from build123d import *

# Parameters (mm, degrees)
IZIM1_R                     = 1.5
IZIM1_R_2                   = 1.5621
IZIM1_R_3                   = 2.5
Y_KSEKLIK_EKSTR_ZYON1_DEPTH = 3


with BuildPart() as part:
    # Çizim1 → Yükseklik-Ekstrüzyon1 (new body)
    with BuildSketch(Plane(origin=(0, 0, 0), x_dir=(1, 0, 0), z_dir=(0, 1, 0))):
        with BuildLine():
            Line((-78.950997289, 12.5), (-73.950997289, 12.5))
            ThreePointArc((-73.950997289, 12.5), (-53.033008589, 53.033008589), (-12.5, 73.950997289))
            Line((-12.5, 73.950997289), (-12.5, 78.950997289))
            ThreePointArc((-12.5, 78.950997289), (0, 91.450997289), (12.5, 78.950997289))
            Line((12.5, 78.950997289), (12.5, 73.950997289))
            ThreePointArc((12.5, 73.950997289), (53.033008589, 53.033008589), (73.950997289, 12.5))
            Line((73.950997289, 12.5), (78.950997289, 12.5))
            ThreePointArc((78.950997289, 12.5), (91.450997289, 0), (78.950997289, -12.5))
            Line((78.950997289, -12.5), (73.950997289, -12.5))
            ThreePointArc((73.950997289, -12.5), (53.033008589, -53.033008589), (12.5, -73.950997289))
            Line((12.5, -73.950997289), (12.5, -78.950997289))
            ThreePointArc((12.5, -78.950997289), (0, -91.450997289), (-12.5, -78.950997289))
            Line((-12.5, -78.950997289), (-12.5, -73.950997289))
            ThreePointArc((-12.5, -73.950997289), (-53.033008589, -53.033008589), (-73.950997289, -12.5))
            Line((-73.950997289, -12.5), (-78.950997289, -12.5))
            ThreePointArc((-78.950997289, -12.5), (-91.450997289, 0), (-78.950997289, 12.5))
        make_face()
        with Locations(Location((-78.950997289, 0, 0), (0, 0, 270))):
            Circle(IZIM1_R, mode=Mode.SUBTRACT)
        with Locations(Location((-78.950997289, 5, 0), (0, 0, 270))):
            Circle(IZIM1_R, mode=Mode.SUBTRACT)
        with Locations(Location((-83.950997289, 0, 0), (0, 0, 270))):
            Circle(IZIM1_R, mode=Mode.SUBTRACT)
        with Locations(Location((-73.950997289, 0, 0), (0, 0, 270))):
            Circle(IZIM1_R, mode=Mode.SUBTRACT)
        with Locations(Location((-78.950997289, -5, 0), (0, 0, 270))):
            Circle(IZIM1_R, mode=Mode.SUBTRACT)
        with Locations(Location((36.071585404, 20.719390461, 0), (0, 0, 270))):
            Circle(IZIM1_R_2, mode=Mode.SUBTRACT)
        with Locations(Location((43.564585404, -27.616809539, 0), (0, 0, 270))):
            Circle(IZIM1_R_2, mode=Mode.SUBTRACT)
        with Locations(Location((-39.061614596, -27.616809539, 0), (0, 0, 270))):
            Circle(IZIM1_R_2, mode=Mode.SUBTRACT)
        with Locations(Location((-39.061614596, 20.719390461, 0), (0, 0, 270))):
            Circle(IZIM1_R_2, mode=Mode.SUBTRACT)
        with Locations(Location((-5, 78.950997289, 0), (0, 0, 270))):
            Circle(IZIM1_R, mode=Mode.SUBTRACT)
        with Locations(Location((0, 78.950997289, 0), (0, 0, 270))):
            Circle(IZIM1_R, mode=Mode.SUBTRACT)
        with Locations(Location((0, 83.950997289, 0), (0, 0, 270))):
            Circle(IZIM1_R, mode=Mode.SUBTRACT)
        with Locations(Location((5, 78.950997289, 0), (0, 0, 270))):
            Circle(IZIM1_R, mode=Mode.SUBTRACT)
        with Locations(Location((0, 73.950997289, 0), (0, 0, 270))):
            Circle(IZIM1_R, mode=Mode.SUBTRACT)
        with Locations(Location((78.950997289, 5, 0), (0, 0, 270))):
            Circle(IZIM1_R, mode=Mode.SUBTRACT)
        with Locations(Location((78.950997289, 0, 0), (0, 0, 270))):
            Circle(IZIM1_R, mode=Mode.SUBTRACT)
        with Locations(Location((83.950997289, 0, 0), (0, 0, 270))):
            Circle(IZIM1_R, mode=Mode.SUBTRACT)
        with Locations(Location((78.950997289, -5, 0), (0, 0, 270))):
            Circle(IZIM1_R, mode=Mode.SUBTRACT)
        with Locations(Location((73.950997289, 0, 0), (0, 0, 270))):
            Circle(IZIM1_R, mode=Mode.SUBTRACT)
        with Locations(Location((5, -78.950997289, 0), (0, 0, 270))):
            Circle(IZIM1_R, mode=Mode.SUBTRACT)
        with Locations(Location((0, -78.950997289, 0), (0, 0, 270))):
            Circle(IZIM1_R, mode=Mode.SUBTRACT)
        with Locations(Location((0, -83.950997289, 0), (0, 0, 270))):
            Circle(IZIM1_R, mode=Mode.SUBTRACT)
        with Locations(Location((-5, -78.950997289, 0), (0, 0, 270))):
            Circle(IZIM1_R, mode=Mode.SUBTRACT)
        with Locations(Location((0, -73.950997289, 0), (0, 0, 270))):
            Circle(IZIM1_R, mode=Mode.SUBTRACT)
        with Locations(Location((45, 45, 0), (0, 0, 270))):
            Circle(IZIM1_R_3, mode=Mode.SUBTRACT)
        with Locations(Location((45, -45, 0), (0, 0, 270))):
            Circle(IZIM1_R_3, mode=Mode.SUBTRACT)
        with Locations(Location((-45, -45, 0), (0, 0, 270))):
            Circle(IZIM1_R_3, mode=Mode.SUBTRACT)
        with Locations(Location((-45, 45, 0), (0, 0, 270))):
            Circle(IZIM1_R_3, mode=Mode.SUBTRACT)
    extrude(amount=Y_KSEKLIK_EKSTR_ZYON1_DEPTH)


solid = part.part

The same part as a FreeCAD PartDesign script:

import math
import FreeCAD as App
import Part
import Sketcher
from FreeCAD import Vector
Q = App.Units.Quantity

doc = App.newDocument("Part")
params = doc.addObject("Spreadsheet::Sheet", "Params")
for row, (alias, value) in enumerate([
    ("sketch1_diameter", "5 mm"),
    ("sketch1_diameter2", "3 mm"),
    ("sketch1_radius", "75 mm"),
    ("sketch1_radius2", "12.5 mm"),
    ("sketch1_width", "5 mm"),
    ("pad1_length", "3 mm"),
], start=1):
    params.set(f"A{row}", alias)
    params.set(f"B{row}", "=" + value)
    params.setAlias(f"B{row}", alias)

body = doc.addObject("PartDesign::Body", "Body")

# Sketch on XZ plane
sketch1 = doc.addObject("Sketcher::SketchObject", "Sketch")
body.addObject(sketch1)
sketch1.AttachmentSupport = (doc.XZ_Plane, [""])
sketch1.MapMode = "FlatFace"
sketch1.addGeometry(Part.LineSegment(Vector(-73.950997, -12.5, 0), Vector(-78.950997, -12.5, 0)), False)
sketch1.addGeometry(Part.ArcOfCircle(Part.Circle(Vector(-78.950997, 0, 0), Vector(0, 0, 1), 12.5), math.radians(90), math.radians(270)), False)
sketch1.addGeometry(Part.LineSegment(Vector(-78.950997, 12.5, 0), Vector(-73.950997, 12.5, 0)), False)
sketch1.addGeometry(Part.ArcOfCircle(Part.Circle(Vector(0, 0, 0), Vector(0, 0, 1), 75), math.radians(99.594068), math.radians(170.405932)), False)
sketch1.addGeometry(Part.LineSegment(Vector(-12.5, 73.950997, 0), Vector(-12.5, 78.950997, 0)), False)
sketch1.addGeometry(Part.ArcOfCircle(Part.Circle(Vector(0, 78.950997, 0), Vector(0, 0, 1), 12.5), math.radians(0), math.radians(180)), False)
sketch1.addGeometry(Part.LineSegment(Vector(12.5, 78.950997, 0), Vector(12.5, 73.950997, 0)), False)
sketch1.addGeometry(Part.ArcOfCircle(Part.Circle(Vector(0, 0, 0), Vector(0, 0, 1), 75), math.radians(9.594068), math.radians(80.405932)), False)
sketch1.addGeometry(Part.LineSegment(Vector(73.950997, 12.5, 0), Vector(78.950997, 12.5, 0)), False)
sketch1.addGeometry(Part.ArcOfCircle(Part.Circle(Vector(78.950997, 0, 0), Vector(0, 0, 1), 12.5), math.radians(-90), math.radians(90)), False)
sketch1.addGeometry(Part.LineSegment(Vector(78.950997, -12.5, 0), Vector(73.950997, -12.5, 0)), False)
sketch1.addGeometry(Part.ArcOfCircle(Part.Circle(Vector(0, 0, 0), Vector(0, 0, 1), 75), math.radians(-80.405932), math.radians(-9.594068)), False)
sketch1.addGeometry(Part.LineSegment(Vector(12.5, -73.950997, 0), Vector(12.5, -78.950997, 0)), False)
sketch1.addGeometry(Part.ArcOfCircle(Part.Circle(Vector(0, -78.950997, 0), Vector(0, 0, 1), 12.5), math.radians(180), math.radians(360)), False)
sketch1.addGeometry(Part.LineSegment(Vector(-12.5, -78.950997, 0), Vector(-12.5, -73.950997, 0)), False)
sketch1.addGeometry(Part.ArcOfCircle(Part.Circle(Vector(0, 0, 0), Vector(0, 0, 1), 75), math.radians(-170.405932), math.radians(-99.594068)), False)
sketch1.addGeometry(Part.Circle(Vector(45, 45, 0), Vector(0, 0, 1), 2.5), False)
sketch1.addGeometry(Part.Circle(Vector(5, 78.950997, 0), Vector(0, 0, 1), 1.5), False)
sketch1.addGeometry(Part.Circle(Vector(43.564585, 27.61681, 0), Vector(0, 0, 1), 1.5621), False)
sketch1.addGeometry(Part.Circle(Vector(78.950997, 5, 0), Vector(0, 0, 1), 1.5), False)
sketch1.addGeometry(Part.Circle(Vector(0, 83.950997, 0), Vector(0, 0, 1), 1.5), False)
sketch1.addGeometry(Part.Circle(Vector(0, 78.950997, 0), Vector(0, 0, 1), 1.5), False)
sketch1.addGeometry(Part.Circle(Vector(-5, 78.950997, 0), Vector(0, 0, 1), 1.5), False)
sketch1.addGeometry(Part.Circle(Vector(0, 73.950997, 0), Vector(0, 0, 1), 1.5), False)
sketch1.addGeometry(Part.Circle(Vector(-45, 45, 0), Vector(0, 0, 1), 2.5), False)
sketch1.addGeometry(Part.Circle(Vector(-39.061615, 27.61681, 0), Vector(0, 0, 1), 1.5621), False)
sketch1.addGeometry(Part.Circle(Vector(-78.950997, 5, 0), Vector(0, 0, 1), 1.5), False)
sketch1.addGeometry(Part.Circle(Vector(83.950997, 0, 0), Vector(0, 0, 1), 1.5), False)
sketch1.addGeometry(Part.Circle(Vector(78.950997, 0, 0), Vector(0, 0, 1), 1.5), False)
sketch1.addGeometry(Part.Circle(Vector(78.950997, -5, 0), Vector(0, 0, 1), 1.5), False)
sketch1.addGeometry(Part.Circle(Vector(73.950997, 0, 0), Vector(0, 0, 1), 1.5), False)
sketch1.addGeometry(Part.Circle(Vector(36.071585, -20.71939, 0), Vector(0, 0, 1), 1.5621), False)
sketch1.addGeometry(Part.Circle(Vector(45, -45, 0), Vector(0, 0, 1), 2.5), False)
sketch1.addGeometry(Part.Circle(Vector(5, -78.950997, 0), Vector(0, 0, 1), 1.5), False)
sketch1.addGeometry(Part.Circle(Vector(-39.061615, -20.71939, 0), Vector(0, 0, 1), 1.5621), False)
sketch1.addGeometry(Part.Circle(Vector(-73.950997, 0, 0), Vector(0, 0, 1), 1.5), False)
sketch1.addGeometry(Part.Circle(Vector(-78.950997, 0, 0), Vector(0, 0, 1), 1.5), False)
sketch1.addGeometry(Part.Circle(Vector(-78.950997, -5, 0), Vector(0, 0, 1), 1.5), False)
sketch1.addGeometry(Part.Circle(Vector(-83.950997, 0, 0), Vector(0, 0, 1), 1.5), False)
sketch1.addGeometry(Part.Circle(Vector(0, -73.950997, 0), Vector(0, 0, 1), 1.5), False)
sketch1.addGeometry(Part.Circle(Vector(0, -78.950997, 0), Vector(0, 0, 1), 1.5), False)
sketch1.addGeometry(Part.Circle(Vector(-5, -78.950997, 0), Vector(0, 0, 1), 1.5), False)
sketch1.addGeometry(Part.Circle(Vector(0, -83.950997, 0), Vector(0, 0, 1), 1.5), False)
sketch1.addGeometry(Part.Circle(Vector(-45, -45, 0), Vector(0, 0, 1), 2.5), False)
sketch1.addConstraint(Sketcher.Constraint("Tangent", 0, 2, 1, 2))
sketch1.addConstraint(Sketcher.Constraint("Tangent", 1, 1, 2, 1))
sketch1.addConstraint(Sketcher.Constraint("Coincident", 2, 2, 3, 2))
sketch1.addConstraint(Sketcher.Constraint("Coincident", 3, 1, 4, 1))
sketch1.addConstraint(Sketcher.Constraint("Tangent", 4, 2, 5, 2))
sketch1.addConstraint(Sketcher.Constraint("Tangent", 5, 1, 6, 1))
sketch1.addConstraint(Sketcher.Constraint("Coincident", 6, 2, 7, 2))
sketch1.addConstraint(Sketcher.Constraint("Coincident", 7, 1, 8, 1))
sketch1.addConstraint(Sketcher.Constraint("Tangent", 8, 2, 9, 2))
sketch1.addConstraint(Sketcher.Constraint("Tangent", 9, 1, 10, 1))
sketch1.addConstraint(Sketcher.Constraint("Coincident", 10, 2, 11, 2))
sketch1.addConstraint(Sketcher.Constraint("Coincident", 11, 1, 12, 1))
sketch1.addConstraint(Sketcher.Constraint("Tangent", 12, 2, 13, 2))
sketch1.addConstraint(Sketcher.Constraint("Tangent", 13, 1, 14, 1))
sketch1.addConstraint(Sketcher.Constraint("Coincident", 14, 2, 15, 2))
sketch1.addConstraint(Sketcher.Constraint("Coincident", 15, 1, 0, 1))
sketch1.addConstraint(Sketcher.Constraint("Horizontal", 0))
sketch1.addConstraint(Sketcher.Constraint("Horizontal", 2))
sketch1.addConstraint(Sketcher.Constraint("Vertical", 4))
sketch1.addConstraint(Sketcher.Constraint("Vertical", 6))
sketch1.addConstraint(Sketcher.Constraint("Horizontal", 8))
sketch1.addConstraint(Sketcher.Constraint("Horizontal", 10))
sketch1.addConstraint(Sketcher.Constraint("Vertical", 12))
sketch1.addConstraint(Sketcher.Constraint("Vertical", 14))
sketch1.addConstraint(Sketcher.Constraint("Coincident", 3, 3, -1, 1))
sketch1.addConstraint(Sketcher.Constraint("Coincident", 7, 3, -1, 1))
sketch1.addConstraint(Sketcher.Constraint("Coincident", 11, 3, -1, 1))
sketch1.addConstraint(Sketcher.Constraint("Coincident", 15, 3, -1, 1))
sketch1.addConstraint(Sketcher.Constraint("Coincident", 21, 3, 5, 3))
sketch1.addConstraint(Sketcher.Constraint("Coincident", 28, 3, 9, 3))
sketch1.addConstraint(Sketcher.Constraint("Coincident", 36, 3, 1, 3))
sketch1.addConstraint(Sketcher.Constraint("Coincident", 40, 3, 13, 3))
sketch1.addConstraint(Sketcher.Constraint("Equal", 1, 5))
sketch1.addConstraint(Sketcher.Constraint("Equal", 3, 7))
sketch1.addConstraint(Sketcher.Constraint("Equal", 5, 9))
sketch1.addConstraint(Sketcher.Constraint("Equal", 7, 11))
sketch1.addConstraint(Sketcher.Constraint("Equal", 9, 13))
sketch1.addConstraint(Sketcher.Constraint("Equal", 11, 15))
sketch1.addConstraint(Sketcher.Constraint("Equal", 17, 19))
sketch1.addConstraint(Sketcher.Constraint("Equal", 19, 20))
sketch1.addConstraint(Sketcher.Constraint("Equal", 20, 21))
sketch1.addConstraint(Sketcher.Constraint("Equal", 21, 22))
sketch1.addConstraint(Sketcher.Constraint("Equal", 22, 23))
sketch1.addConstraint(Sketcher.Constraint("Equal", 16, 24))
sketch1.addConstraint(Sketcher.Constraint("Equal", 18, 25))
sketch1.addConstraint(Sketcher.Constraint("Equal", 23, 26))
sketch1.addConstraint(Sketcher.Constraint("Equal", 26, 27))
sketch1.addConstraint(Sketcher.Constraint("Equal", 27, 28))
sketch1.addConstraint(Sketcher.Constraint("Equal", 28, 29))
sketch1.addConstraint(Sketcher.Constraint("Equal", 29, 30))
sketch1.addConstraint(Sketcher.Constraint("Equal", 25, 31))
sketch1.addConstraint(Sketcher.Constraint("Equal", 24, 32))
sketch1.addConstraint(Sketcher.Constraint("Equal", 30, 33))
sketch1.addConstraint(Sketcher.Constraint("Equal", 31, 34))
sketch1.addConstraint(Sketcher.Constraint("Equal", 33, 35))
sketch1.addConstraint(Sketcher.Constraint("Equal", 35, 36))
sketch1.addConstraint(Sketcher.Constraint("Equal", 36, 37))
sketch1.addConstraint(Sketcher.Constraint("Equal", 37, 38))
sketch1.addConstraint(Sketcher.Constraint("Equal", 38, 39))
sketch1.addConstraint(Sketcher.Constraint("Equal", 39, 40))
sketch1.addConstraint(Sketcher.Constraint("Equal", 40, 41))
sketch1.addConstraint(Sketcher.Constraint("Equal", 41, 42))
sketch1.addConstraint(Sketcher.Constraint("Equal", 32, 43))
sketch1.addConstraint(Sketcher.Constraint("Symmetric", 1, 3, 9, 3, -1, 1))
sketch1.addConstraint(Sketcher.Constraint("Symmetric", 5, 3, 13, 3, -1, 1))
sketch1.addConstraint(Sketcher.Constraint("Symmetric", 26, 3, 29, 3, -1, 1))
sketch1.addConstraint(Sketcher.Constraint("Symmetric", 24, 3, 32, 3, -1, 1))
sketch1.addConstraint(Sketcher.Constraint("Symmetric", 22, 3, 33, 3, -1, 1))
sketch1.addConstraint(Sketcher.Constraint("Symmetric", 30, 3, 35, 3, -1, 1))
sketch1.addConstraint(Sketcher.Constraint("Symmetric", 19, 3, 37, 3, -1, 1))
sketch1.addConstraint(Sketcher.Constraint("Symmetric", 27, 3, 38, 3, -1, 1))
sketch1.addConstraint(Sketcher.Constraint("Symmetric", 23, 3, 39, 3, -1, 1))
sketch1.addConstraint(Sketcher.Constraint("Symmetric", 17, 3, 41, 3, -1, 1))
sketch1.addConstraint(Sketcher.Constraint("Symmetric", 20, 3, 42, 3, -1, 1))
sketch1.addConstraint(Sketcher.Constraint("Symmetric", 16, 3, 43, 3, -1, 1))
sketch1.addConstraint(Sketcher.Constraint("Symmetric", 17, 3, 22, 3, -2))
sketch1.addConstraint(Sketcher.Constraint("Symmetric", 16, 3, 24, 3, -2))
sketch1.addConstraint(Sketcher.Constraint("Symmetric", 19, 3, 26, 3, -2))
sketch1.addConstraint(Sketcher.Constraint("PointOnObject", 1, 3, -1))
sketch1.addConstraint(Sketcher.Constraint("PointOnObject", 5, 3, -2))
sketch1.addConstraint(Sketcher.Constraint("PointOnObject", 20, 3, -2))
sketch1.addConstraint(Sketcher.Constraint("PointOnObject", 23, 3, -2))
sketch1.addConstraint(Sketcher.Constraint("PointOnObject", 27, 3, -1))
sketch1.addConstraint(Sketcher.Constraint("PointOnObject", 30, 3, -1))
sketch1.addConstraint(Sketcher.Constraint("Horizontal", 5, 3, 17, 3))
sketch1.addConstraint(Sketcher.Constraint("Horizontal", 18, 3, 25, 3))
sketch1.addConstraint(Sketcher.Constraint("Horizontal", 31, 3, 34, 3))
sketch1.addConstraint(Sketcher.Constraint("Horizontal", 23, 3, 3, 1))
sketch1.addConstraint(Sketcher.Constraint("Vertical", 9, 3, 19, 3))
sketch1.addConstraint(Sketcher.Constraint("Vertical", 25, 3, 34, 3))
sketch1.addConstraint(Sketcher.Constraint("Vertical", 35, 3, 2, 2))
sketch1.addConstraint(Sketcher.Constraint("Equal", 10, 4))
sketch1.addConstraint(Sketcher.Constraint("Diameter", 16, Q("5 mm")))
sketch1.addConstraint(Sketcher.Constraint("Diameter", 17, Q("3 mm")))
sketch1.addConstraint(Sketcher.Constraint("Radius", 3, Q("75 mm")))
sketch1.addConstraint(Sketcher.Constraint("Radius", 1, Q("12.5 mm")))
sketch1.addConstraint(Sketcher.Constraint("DistanceX", 0, 2, 0, 1, Q("5 mm")))
sketch1.addConstraint(Sketcher.Constraint("DistanceX", -1, 1, 16, 3, Q("45 mm")))
sketch1.addConstraint(Sketcher.Constraint("DistanceY", -1, 1, 16, 3, Q("45 mm")))
sketch1.addConstraint(Sketcher.Constraint("DistanceX", -1, 1, 17, 3, Q("5 mm")))
sketch1.addConstraint(Sketcher.Constraint("DistanceY", -1, 1, 19, 3, Q("5 mm")))
sketch1.addConstraint(Sketcher.Constraint("DistanceY", 5, 3, 20, 3, Q("5 mm")))
sketch1.addConstraint(Sketcher.Constraint("DistanceX", 9, 3, 27, 3, Q("5 mm")))
sketch1.addConstraint(Sketcher.Constraint("Diameter", 18, Q("3.1242 mm")))
sketch1.addConstraint(Sketcher.Constraint("DistanceY", -1, 1, 18, 3, Q("27.61681 mm")))
sketch1.addConstraint(Sketcher.Constraint("DistanceY", 31, 3, -1, 1, Q("20.71939 mm")))
sketch1.addConstraint(Sketcher.Constraint("DistanceX", 18, 3, 9, 3, Q("35.386412 mm")))
sketch1.addConstraint(Sketcher.Constraint("DistanceX", 31, 3, 30, 3, Q("37.879412 mm")))
sketch1.addConstraint(Sketcher.Constraint("DistanceX", 25, 3, -1, 1, Q("39.061615 mm")))
sketch1.setExpression("Constraints[92]", "Params.sketch1_diameter")
sketch1.setExpression("Constraints[93]", "Params.sketch1_diameter2")
sketch1.setExpression("Constraints[94]", "Params.sketch1_radius")
sketch1.setExpression("Constraints[95]", "Params.sketch1_radius2")
sketch1.setExpression("Constraints[96]", "Params.sketch1_width")
pad1 = doc.addObject("PartDesign::Pad", "Pad")
body.addObject(pad1)
pad1.Profile = sketch1
pad1.setExpression("Length", "Params.pad1_length")
pad1.Reversed = True

doc.recompute()
